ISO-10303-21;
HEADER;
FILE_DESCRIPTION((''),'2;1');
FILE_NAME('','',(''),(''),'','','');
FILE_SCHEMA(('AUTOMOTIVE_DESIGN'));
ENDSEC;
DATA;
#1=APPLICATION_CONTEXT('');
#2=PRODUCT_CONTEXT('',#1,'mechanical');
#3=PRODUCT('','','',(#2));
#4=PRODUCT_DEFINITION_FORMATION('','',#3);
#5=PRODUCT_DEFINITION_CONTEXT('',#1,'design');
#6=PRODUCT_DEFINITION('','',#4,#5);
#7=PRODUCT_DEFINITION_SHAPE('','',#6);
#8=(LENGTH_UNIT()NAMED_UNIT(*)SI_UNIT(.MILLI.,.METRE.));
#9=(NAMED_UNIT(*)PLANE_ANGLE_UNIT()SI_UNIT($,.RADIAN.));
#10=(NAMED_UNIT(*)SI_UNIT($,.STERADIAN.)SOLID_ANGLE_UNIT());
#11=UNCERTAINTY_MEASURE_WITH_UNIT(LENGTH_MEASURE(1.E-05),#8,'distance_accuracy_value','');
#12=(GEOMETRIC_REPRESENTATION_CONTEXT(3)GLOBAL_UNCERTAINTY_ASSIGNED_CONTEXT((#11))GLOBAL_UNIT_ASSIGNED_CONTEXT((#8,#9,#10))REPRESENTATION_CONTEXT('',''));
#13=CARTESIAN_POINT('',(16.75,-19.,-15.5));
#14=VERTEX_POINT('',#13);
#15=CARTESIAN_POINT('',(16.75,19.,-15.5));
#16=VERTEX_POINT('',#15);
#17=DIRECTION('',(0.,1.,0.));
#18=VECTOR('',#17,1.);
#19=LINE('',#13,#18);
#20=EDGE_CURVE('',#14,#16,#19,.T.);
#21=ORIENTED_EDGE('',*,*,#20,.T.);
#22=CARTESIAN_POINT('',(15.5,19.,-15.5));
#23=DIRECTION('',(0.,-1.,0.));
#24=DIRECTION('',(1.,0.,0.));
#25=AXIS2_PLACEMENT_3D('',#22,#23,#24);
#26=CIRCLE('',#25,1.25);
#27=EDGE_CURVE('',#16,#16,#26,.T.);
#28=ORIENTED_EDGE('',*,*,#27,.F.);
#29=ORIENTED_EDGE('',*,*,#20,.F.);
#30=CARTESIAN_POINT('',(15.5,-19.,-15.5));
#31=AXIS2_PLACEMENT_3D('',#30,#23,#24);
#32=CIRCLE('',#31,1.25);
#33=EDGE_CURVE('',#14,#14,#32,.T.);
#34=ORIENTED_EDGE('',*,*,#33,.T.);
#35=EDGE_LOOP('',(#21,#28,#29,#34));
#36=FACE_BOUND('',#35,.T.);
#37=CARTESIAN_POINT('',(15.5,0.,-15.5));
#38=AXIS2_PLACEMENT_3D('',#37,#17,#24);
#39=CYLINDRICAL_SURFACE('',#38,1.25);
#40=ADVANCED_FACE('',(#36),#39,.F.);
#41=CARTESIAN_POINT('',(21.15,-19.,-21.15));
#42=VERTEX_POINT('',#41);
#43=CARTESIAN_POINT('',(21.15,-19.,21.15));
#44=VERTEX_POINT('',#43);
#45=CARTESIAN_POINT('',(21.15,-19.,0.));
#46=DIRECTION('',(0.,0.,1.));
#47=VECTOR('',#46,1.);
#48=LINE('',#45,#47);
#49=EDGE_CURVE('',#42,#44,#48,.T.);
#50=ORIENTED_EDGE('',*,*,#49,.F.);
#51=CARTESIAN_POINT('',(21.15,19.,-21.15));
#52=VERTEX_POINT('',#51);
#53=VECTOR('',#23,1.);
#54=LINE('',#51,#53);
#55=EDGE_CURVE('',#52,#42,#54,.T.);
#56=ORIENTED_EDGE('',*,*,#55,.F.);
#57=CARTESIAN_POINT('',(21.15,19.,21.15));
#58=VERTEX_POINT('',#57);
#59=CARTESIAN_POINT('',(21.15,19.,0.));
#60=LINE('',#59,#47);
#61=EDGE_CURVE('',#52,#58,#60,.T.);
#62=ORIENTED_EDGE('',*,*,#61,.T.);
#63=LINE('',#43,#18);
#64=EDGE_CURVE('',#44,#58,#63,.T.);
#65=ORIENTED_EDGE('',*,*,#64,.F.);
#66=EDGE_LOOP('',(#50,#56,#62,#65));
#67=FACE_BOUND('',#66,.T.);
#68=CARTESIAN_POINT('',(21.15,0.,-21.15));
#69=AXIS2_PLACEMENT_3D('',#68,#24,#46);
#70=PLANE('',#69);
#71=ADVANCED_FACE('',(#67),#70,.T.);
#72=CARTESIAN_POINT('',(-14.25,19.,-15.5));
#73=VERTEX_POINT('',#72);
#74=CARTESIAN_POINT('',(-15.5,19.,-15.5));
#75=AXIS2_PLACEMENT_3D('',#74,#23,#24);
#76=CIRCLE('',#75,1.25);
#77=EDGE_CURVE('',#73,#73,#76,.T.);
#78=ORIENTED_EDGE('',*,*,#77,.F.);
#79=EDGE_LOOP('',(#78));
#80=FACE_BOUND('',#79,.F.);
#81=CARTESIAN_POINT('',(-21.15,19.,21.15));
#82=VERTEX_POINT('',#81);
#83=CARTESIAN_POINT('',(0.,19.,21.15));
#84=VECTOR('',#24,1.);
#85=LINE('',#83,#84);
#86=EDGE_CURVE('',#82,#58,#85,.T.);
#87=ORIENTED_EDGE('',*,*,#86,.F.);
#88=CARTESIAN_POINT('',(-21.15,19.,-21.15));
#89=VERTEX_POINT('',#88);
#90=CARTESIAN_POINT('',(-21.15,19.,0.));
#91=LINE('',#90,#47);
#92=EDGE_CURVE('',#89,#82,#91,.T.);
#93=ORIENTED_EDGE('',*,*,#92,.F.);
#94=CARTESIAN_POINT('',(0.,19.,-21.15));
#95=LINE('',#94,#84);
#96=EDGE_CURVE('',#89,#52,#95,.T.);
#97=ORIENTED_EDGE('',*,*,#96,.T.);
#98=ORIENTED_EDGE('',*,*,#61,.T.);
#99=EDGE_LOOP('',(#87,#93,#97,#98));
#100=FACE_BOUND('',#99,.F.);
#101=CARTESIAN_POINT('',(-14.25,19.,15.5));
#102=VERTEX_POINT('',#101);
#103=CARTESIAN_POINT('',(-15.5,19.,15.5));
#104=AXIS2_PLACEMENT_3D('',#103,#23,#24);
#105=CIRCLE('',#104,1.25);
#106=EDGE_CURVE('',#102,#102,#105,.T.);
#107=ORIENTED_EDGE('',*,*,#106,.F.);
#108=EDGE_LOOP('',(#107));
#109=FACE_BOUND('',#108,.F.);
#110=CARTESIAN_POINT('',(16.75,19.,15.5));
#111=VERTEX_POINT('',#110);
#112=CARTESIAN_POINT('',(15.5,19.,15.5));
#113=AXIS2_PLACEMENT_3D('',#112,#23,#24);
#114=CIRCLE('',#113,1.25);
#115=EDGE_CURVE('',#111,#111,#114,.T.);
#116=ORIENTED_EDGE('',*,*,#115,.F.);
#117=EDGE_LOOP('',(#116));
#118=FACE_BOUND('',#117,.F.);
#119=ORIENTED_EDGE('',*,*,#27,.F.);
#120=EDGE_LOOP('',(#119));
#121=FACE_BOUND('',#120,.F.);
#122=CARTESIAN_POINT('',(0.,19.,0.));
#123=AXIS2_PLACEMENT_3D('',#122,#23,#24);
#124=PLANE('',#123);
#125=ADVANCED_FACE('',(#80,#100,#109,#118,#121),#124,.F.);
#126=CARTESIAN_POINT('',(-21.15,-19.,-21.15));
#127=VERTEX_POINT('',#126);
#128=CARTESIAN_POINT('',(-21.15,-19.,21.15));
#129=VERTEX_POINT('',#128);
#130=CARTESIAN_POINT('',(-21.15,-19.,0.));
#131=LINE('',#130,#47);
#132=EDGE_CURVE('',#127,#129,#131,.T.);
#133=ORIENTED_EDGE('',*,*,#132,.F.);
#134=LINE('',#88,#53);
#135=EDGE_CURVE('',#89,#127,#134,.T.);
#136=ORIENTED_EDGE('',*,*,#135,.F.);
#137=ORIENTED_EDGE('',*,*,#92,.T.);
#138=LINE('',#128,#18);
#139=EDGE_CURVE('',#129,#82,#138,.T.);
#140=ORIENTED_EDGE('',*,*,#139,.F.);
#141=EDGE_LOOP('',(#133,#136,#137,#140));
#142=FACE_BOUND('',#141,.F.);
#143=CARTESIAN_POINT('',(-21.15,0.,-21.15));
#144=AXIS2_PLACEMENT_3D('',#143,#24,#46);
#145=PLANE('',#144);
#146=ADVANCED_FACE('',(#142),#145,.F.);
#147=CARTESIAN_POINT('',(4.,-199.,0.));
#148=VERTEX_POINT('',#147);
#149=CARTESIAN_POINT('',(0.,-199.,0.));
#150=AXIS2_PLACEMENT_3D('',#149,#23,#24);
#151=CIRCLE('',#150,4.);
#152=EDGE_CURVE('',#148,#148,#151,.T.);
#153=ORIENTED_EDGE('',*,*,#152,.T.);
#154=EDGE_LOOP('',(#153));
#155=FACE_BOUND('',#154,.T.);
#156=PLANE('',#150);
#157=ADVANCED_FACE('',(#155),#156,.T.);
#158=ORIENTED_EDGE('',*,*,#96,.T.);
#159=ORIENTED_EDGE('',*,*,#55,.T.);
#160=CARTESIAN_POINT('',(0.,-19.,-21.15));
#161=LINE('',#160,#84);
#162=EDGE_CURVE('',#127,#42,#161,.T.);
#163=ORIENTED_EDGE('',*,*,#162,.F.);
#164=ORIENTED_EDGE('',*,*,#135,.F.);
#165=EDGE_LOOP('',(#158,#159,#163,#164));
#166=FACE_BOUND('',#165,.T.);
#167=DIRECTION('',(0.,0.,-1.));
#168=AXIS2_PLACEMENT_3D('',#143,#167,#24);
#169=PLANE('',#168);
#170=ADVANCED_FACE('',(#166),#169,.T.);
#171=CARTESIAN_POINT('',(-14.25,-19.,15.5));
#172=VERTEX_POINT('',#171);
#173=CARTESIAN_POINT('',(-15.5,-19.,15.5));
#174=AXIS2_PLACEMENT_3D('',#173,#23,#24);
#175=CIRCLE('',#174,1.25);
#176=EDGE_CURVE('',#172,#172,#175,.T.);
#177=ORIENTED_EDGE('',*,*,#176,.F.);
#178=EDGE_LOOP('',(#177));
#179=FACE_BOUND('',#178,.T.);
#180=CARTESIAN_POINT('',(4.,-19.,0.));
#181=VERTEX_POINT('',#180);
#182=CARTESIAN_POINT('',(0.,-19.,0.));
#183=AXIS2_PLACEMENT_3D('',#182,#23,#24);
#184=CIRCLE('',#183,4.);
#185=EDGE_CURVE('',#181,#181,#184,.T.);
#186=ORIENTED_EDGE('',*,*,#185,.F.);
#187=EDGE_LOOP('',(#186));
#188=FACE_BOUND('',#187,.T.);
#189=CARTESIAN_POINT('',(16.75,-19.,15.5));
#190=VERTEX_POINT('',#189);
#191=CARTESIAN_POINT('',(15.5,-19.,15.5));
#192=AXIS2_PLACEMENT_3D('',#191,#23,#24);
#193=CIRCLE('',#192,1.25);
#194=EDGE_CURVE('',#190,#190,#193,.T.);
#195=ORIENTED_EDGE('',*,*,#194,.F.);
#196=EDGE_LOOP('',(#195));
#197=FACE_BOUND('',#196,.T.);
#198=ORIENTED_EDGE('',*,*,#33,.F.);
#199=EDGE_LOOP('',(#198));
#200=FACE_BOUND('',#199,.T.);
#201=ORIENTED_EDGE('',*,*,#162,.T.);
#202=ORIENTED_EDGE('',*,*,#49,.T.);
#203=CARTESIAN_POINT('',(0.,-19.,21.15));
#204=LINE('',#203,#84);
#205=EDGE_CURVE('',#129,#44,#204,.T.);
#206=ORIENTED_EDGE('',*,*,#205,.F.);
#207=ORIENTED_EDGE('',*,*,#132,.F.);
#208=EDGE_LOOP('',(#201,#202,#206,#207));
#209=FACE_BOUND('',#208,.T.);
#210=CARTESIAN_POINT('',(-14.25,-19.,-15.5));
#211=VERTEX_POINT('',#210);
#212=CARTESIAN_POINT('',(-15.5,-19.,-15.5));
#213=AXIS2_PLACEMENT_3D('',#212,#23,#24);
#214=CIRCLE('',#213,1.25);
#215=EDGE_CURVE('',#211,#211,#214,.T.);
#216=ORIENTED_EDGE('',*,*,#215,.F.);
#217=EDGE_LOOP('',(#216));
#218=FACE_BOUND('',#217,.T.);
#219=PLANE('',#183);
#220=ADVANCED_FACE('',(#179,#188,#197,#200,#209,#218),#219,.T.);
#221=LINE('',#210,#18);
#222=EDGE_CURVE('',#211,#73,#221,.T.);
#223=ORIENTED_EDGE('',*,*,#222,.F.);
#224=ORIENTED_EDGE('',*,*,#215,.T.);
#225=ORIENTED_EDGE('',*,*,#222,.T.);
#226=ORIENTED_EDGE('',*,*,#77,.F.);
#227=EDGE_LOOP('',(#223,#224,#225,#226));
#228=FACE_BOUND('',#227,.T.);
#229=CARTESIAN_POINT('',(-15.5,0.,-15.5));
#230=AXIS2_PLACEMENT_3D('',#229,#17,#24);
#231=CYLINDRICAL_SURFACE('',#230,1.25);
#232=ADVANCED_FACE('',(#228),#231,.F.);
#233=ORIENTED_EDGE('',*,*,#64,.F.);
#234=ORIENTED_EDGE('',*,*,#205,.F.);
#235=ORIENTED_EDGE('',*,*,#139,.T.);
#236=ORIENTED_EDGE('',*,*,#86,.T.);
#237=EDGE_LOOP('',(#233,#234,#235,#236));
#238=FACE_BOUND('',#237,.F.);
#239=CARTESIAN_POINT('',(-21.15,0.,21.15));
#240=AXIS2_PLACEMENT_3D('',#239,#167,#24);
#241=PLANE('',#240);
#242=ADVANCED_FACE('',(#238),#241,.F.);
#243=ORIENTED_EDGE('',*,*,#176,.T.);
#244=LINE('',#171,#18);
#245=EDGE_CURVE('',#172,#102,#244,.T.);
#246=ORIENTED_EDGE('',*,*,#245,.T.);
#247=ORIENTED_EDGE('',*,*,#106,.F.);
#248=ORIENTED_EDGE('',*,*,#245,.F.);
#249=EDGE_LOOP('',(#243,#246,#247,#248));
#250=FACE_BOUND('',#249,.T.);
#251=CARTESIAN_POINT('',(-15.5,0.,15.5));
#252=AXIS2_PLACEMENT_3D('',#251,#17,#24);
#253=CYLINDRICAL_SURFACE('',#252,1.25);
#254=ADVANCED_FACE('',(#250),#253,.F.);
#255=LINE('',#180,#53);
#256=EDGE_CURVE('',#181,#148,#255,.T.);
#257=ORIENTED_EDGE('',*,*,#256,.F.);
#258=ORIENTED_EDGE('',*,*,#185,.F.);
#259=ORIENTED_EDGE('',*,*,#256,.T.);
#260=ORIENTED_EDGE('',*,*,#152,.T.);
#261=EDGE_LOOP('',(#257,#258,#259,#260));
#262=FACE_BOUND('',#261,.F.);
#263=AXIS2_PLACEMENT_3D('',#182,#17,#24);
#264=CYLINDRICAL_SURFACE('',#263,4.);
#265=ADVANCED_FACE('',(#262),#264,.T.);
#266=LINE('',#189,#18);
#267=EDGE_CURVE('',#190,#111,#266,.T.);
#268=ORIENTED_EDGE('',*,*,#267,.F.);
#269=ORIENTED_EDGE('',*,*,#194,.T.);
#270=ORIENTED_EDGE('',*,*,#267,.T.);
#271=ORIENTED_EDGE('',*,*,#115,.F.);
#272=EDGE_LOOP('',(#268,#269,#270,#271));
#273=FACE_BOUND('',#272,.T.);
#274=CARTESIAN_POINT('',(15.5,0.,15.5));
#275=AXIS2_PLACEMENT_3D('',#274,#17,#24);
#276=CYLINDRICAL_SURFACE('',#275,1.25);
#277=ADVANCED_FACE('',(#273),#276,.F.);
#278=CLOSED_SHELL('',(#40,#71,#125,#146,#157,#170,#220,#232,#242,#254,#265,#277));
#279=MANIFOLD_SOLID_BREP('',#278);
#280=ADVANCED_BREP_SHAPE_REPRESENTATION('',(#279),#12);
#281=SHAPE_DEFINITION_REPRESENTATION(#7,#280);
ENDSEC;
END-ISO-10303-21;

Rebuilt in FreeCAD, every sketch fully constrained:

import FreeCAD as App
import Part
import Sketcher
from FreeCAD import Vector


def add_polygon(sketch, points):
    """Adds a closed chain of lines whose ends are joined by coincident constraints."""
    first, n = sketch.GeometryCount, len(points)
    for a, b in zip(points, points[1:] + points[:1]):
        sketch.addGeometry(Part.LineSegment(App.Vector(*a, 0), App.Vector(*b, 0)), False)
    for i in range(n):
        sketch.addConstraint(Sketcher.Constraint("Coincident", first + i, 2, first + (i + 1) % n, 1))

doc = App.newDocument("Part")
body = doc.addObject("PartDesign::Body", "Body")

# Sketch on XZ plane
sketch1 = doc.addObject("Sketcher::SketchObject", "Sketch")
body.addObject(sketch1)
sketch1.AttachmentSupport = (doc.XZ_Plane, [""])
sketch1.MapMode = "FlatFace"
add_polygon(sketch1, [(-21.1, 21.1), (-21.1, -21.1), (21.1, -21.1), (21.1, 21.1)])  # lines 0-3
sketch1.addGeometry(Part.Circle(Vector(-15.5, -15.5, 0), Vector(0, 0, 1), 1.2), False)  # 4
sketch1.addGeometry(Part.Circle(Vector(15.5, -15.5, 0), Vector(0, 0, 1), 1.2), False)  # 5
sketch1.addGeometry(Part.Circle(Vector(-15.5, 15.5, 0), Vector(0, 0, 1), 1.2), False)  # 6
sketch1.addGeometry(Part.Circle(Vector(15.5, 15.5, 0), Vector(0, 0, 1), 1.2), False)  # 7
sketch1.addConstraint(Sketcher.Constraint("Vertical", 0))
sketch1.addConstraint(Sketcher.Constraint("Horizontal", 1))
sketch1.addConstraint(Sketcher.Constraint("Vertical", 2))
sketch1.addConstraint(Sketcher.Constraint("Horizontal", 3))
sketch1.addConstraint(Sketcher.Constraint("Equal", 4, 5))
sketch1.addConstraint(Sketcher.Constraint("Equal", 5, 6))
sketch1.addConstraint(Sketcher.Constraint("Equal", 6, 7))
sketch1.addConstraint(Sketcher.Constraint("Symmetric", 5, 3, 6, 3, -1, 1))
sketch1.addConstraint(Sketcher.Constraint("Symmetric", 4, 3, 7, 3, -1, 1))
sketch1.addConstraint(Sketcher.Constraint("Symmetric", 0, 2, 2, 2, -1, 1))
sketch1.addConstraint(Sketcher.Constraint("Symmetric", 4, 3, 5, 3, -2))
sketch1.addConstraint(Sketcher.Constraint("Equal", 3, 0))
sketch1.addConstraint(Sketcher.Constraint("Diameter", 4, 2.5))
sketch1.addConstraint(Sketcher.Constraint("DistanceX", 1, 1, 1, 2, 42.3))
sketch1.addConstraint(Sketcher.Constraint("DistanceX", 4, 3, 5, 3, 31.0))
sketch1.addConstraint(Sketcher.Constraint("DistanceY", 4, 3, 6, 3, 31.0))
pad1 = doc.addObject("PartDesign::Pad", "Pad")
body.addObject(pad1)
pad1.Profile = sketch1
pad1.Length = 38
pad1.Midplane = True

# Sketch on XZ plane
sketch2 = doc.addObject("Sketcher::SketchObject", "Sketch001")
body.addObject(sketch2)
sketch2.AttachmentSupport = (doc.XZ_Plane, [""])
sketch2.MapMode = "FlatFace"
sketch2.AttachmentOffset = App.Placement(Vector(0, 0, 19), App.Rotation())
sketch2.addGeometry(Part.Circle(Vector(0, 0, 0), Vector(0, 0, 1), 4), False)
sketch2.addConstraint(Sketcher.Constraint("Coincident", 0, 3, -1, 1))
sketch2.addConstraint(Sketcher.Constraint("Diameter", 0, 8.0))
pad2 = doc.addObject("PartDesign::Pad", "Pad001")
body.addObject(pad2)
pad2.Profile = sketch2
pad2.Length = 180

doc.recompute()
